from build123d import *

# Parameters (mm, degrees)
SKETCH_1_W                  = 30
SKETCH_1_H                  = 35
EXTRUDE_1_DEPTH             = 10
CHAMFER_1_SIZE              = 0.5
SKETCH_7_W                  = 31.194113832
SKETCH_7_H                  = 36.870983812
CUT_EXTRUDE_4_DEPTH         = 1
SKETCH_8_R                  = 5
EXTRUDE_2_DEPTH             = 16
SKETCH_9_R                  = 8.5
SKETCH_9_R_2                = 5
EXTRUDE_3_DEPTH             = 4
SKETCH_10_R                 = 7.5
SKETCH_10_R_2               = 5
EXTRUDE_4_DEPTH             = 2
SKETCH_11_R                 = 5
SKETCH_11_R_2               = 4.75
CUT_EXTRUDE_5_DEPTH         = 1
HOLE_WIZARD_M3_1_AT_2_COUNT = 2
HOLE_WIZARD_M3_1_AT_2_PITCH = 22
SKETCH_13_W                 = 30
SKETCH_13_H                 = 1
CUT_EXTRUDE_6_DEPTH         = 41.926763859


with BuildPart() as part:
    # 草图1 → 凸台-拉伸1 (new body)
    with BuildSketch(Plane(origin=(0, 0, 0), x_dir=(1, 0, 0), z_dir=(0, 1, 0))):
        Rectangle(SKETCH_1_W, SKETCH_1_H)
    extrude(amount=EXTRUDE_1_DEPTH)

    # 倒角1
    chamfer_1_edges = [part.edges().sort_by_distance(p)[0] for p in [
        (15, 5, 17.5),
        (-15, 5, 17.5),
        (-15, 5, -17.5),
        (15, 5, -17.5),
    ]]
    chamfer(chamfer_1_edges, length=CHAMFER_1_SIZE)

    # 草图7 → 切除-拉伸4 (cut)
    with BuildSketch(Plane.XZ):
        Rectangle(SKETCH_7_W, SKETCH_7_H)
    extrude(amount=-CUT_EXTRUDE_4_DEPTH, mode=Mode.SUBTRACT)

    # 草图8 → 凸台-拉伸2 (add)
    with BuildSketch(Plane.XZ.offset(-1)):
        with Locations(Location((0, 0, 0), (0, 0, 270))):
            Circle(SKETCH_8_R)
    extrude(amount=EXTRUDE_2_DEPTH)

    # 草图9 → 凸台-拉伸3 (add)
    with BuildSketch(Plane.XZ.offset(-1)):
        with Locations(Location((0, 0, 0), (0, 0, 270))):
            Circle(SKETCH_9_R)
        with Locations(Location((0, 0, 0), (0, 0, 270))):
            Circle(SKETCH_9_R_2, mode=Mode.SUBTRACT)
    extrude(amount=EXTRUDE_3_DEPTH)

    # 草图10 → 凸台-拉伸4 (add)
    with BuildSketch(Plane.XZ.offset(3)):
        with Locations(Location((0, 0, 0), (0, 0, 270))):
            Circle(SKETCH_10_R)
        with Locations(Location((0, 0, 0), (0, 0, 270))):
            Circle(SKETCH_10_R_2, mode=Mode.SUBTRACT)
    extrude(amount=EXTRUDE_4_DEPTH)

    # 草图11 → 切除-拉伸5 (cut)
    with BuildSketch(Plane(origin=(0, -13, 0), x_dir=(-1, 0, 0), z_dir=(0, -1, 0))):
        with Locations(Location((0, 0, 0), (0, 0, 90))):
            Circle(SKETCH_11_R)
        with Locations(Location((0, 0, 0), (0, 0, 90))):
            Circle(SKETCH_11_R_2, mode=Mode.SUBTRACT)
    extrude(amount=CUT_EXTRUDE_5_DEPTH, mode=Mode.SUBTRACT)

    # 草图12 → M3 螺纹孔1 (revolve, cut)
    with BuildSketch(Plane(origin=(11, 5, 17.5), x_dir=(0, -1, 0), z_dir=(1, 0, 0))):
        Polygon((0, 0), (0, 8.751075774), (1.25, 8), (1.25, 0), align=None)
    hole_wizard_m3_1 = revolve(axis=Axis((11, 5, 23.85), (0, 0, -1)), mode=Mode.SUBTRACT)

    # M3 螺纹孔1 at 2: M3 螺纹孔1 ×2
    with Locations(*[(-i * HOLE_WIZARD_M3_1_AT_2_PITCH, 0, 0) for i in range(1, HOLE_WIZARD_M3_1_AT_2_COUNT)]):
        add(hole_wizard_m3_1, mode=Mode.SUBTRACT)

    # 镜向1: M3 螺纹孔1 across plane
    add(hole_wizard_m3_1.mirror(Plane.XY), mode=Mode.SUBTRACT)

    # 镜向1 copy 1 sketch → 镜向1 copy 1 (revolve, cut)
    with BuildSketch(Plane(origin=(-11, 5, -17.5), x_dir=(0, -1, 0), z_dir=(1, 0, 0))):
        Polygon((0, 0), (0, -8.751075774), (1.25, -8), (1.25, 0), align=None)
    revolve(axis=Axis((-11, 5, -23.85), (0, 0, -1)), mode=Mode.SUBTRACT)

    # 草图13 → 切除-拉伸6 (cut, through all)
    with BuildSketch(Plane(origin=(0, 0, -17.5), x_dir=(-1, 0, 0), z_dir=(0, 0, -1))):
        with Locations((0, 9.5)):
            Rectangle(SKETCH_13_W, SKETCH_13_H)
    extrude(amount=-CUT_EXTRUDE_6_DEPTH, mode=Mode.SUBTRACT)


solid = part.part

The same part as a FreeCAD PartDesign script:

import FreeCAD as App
import Part
import Sketcher
from FreeCAD import Vector
Q = App.Units.Quantity


def edges_at(feature, points):
    """Names of the edges that pass closest to the given points."""
    edges = feature.Shape.Edges
    near = lambda p: min(range(len(edges)), key=lambda i: edges[i].distToShape(Part.Vertex(*p))[0])
    return sorted({f"Edge{near(p) + 1}" for p in points})

doc = App.newDocument("Part")
body = doc.addObject("PartDesign::Body", "Body")

# Sketch on XZ plane
sketch1 = body.newObject("Sketcher::SketchObject", "Sketch")
sketch1.AttachmentSupport = (doc.getObject("XZ_Plane"), [""])
sketch1.MapMode = "FlatFace"
sketch1.addGeometry(Part.LineSegment(Vector(-15, -18, 0), Vector(-15, 18, 0)), False)
sketch1.addGeometry(Part.LineSegment(Vector(-15, 18, 0), Vector(15, 18, 0)), False)
sketch1.addGeometry(Part.LineSegment(Vector(15, 18, 0), Vector(15, -18, 0)), False)
sketch1.addGeometry(Part.LineSegment(Vector(15, -18, 0), Vector(-15, -18, 0)), False)
sketch1.addConstraint(Sketcher.Constraint("Coincident", 0, 2, 1, 1))
sketch1.addConstraint(Sketcher.Constraint("Coincident", 1, 2, 2, 1))
sketch1.addConstraint(Sketcher.Constraint("Coincident", 2, 2, 3, 1))
sketch1.addConstraint(Sketcher.Constraint("Coincident", 3, 2, 0, 1))
sketch1.addConstraint(Sketcher.Constraint("Vertical", 0))
sketch1.addConstraint(Sketcher.Constraint("Horizontal", 1))
sketch1.addConstraint(Sketcher.Constraint("Vertical", 2))
sketch1.addConstraint(Sketcher.Constraint("Horizontal", 3))
sketch1.addConstraint(Sketcher.Constraint("Symmetric", 0, 2, 2, 2, -1, 1))
sketch1.addConstraint(Sketcher.Constraint("DistanceX", 1, 1, 1, 2, 30.0))
sketch1.addConstraint(Sketcher.Constraint("DistanceY", 0, 1, 0, 2, 35.0))
pad1 = body.newObject("PartDesign::Pad", "Pad")
pad1.Profile = sketch1
pad1.Length = 10
pad1.Reversed = True
doc.recompute()

chamfer = body.newObject("PartDesign::Chamfer", "Chamfer")
chamfer.Base = (pad1, edges_at(pad1, [
    (15, 5, 17.5),
    (-15, 5, 17.5),
    (-15, 5, -17.5),
    (15, 5, -17.5),
]))
chamfer.Size = 0.5

# Sketch on XZ plane
sketch2 = body.newObject("Sketcher::SketchObject", "Sketch001")
sketch2.AttachmentSupport = (doc.getObject("XZ_Plane"), [""])
sketch2.MapMode = "FlatFace"
sketch2.addGeometry(Part.LineSegment(Vector(-16, 18, 0), Vector(-16, -18, 0)), False)
sketch2.addGeometry(Part.LineSegment(Vector(-16, -18, 0), Vector(16, -18, 0)), False)
sketch2.addGeometry(Part.LineSegment(Vector(16, -18, 0), Vector(16, 18, 0)), False)
sketch2.addGeometry(Part.LineSegment(Vector(16, 18, 0), Vector(-16, 18, 0)), False)
sketch2.addConstraint(Sketcher.Constraint("Coincident", 0, 2, 1, 1))
sketch2.addConstraint(Sketcher.Constraint("Coincident", 1, 2, 2, 1))
sketch2.addConstraint(Sketcher.Constraint("Coincident", 2, 2, 3, 1))
sketch2.addConstraint(Sketcher.Constraint("Coincident", 3, 2, 0, 1))
sketch2.addConstraint(Sketcher.Constraint("Vertical", 0))
sketch2.addConstraint(Sketcher.Constraint("Horizontal", 1))
sketch2.addConstraint(Sketcher.Constraint("Vertical", 2))
sketch2.addConstraint(Sketcher.Constraint("Horizontal", 3))
sketch2.addConstraint(Sketcher.Constraint("Symmetric", 0, 2, 2, 2, -1, 1))
sketch2.addConstraint(Sketcher.Constraint("DistanceX", 1, 1, 1, 2, 31.194114))
sketch2.addConstraint(Sketcher.Constraint("DistanceY", 0, 2, 0, 1, 36.870984))
pocket1 = body.newObject("PartDesign::Pocket", "Pocket")
pocket1.Profile = sketch2
pocket1.Length = 1

# Sketch on XZ plane
sketch3 = body.newObject("Sketcher::SketchObject", "Sketch002")
sketch3.AttachmentSupport = (doc.getObject("XZ_Plane"), [""])
sketch3.MapMode = "FlatFace"
sketch3.AttachmentOffset = App.Placement(Vector(0, 0, -1), App.Rotation())
sketch3.addGeometry(Part.Circle(Vector(0, 0, 0), Vector(0, 0, 1), 5), False)
sketch3.addConstraint(Sketcher.Constraint("Coincident", 0, 3, -1, 1))
sketch3.addConstraint(Sketcher.Constraint("Diameter", 0, 10.0))
pad2 = body.newObject("PartDesign::Pad", "Pad001")
pad2.Profile = sketch3
pad2.Length = 16

# Sketch on XZ plane
sketch4 = body.newObject("Sketcher::SketchObject", "Sketch003")
sketch4.AttachmentSupport = (doc.getObject("XZ_Plane"), [""])
sketch4.MapMode = "FlatFace"
sketch4.AttachmentOffset = App.Placement(Vector(0, 0, -1), App.Rotation())
sketch4.addGeometry(Part.Circle(Vector(0, 0, 0), Vector(0, 0, 1), 8), False)
sketch4.addGeometry(Part.Circle(Vector(0, 0, 0), Vector(0, 0, 1), 5), False)
sketch4.addConstraint(Sketcher.Constraint("Coincident", 0, 3, -1, 1))
sketch4.addConstraint(Sketcher.Constraint("Coincident", 1, 3, -1, 1))
sketch4.addConstraint(Sketcher.Constraint("Diameter", 0, 17.0))
sketch4.addConstraint(Sketcher.Constraint("Diameter", 1, 10.0))
pad3 = body.newObject("PartDesign::Pad", "Pad002")
pad3.Profile = sketch4
pad3.Length = 4

# Sketch on XZ plane
sketch5 = body.newObject("Sketcher::SketchObject", "Sketch004")
sketch5.AttachmentSupport = (doc.getObject("XZ_Plane"), [""])
sketch5.MapMode = "FlatFace"
sketch5.AttachmentOffset = App.Placement(Vector(0, 0, 3), App.Rotation())
sketch5.addGeometry(Part.Circle(Vector(0, 0, 0), Vector(0, 0, 1), 8), False)
sketch5.addGeometry(Part.Circle(Vector(0, 0, 0), Vector(0, 0, 1), 5), False)
sketch5.addConstraint(Sketcher.Constraint("Coincident", 0, 3, -1, 1))
sketch5.addConstraint(Sketcher.Constraint("Coincident", 1, 3, -1, 1))
sketch5.addConstraint(Sketcher.Constraint("Diameter", 0, 15.0))
sketch5.addConstraint(Sketcher.Constraint("Diameter", 1, 10.0))
pad4 = body.newObject("PartDesign::Pad", "Pad003")
pad4.Profile = sketch5
pad4.Length = 2

# Sketch on XZ plane
sketch6 = body.newObject("Sketcher::SketchObject", "Sketch005")
sketch6.AttachmentSupport = (doc.getObject("XZ_Plane"), [""])
sketch6.MapMode = "FlatFace"
sketch6.AttachmentOffset = App.Placement(Vector(0, 0, 13), App.Rotation())
sketch6.addGeometry(Part.Circle(Vector(0, 0, 0), Vector(0, 0, 1), 5), False)
sketch6.addGeometry(Part.Circle(Vector(0, 0, 0), Vector(0, 0, 1), 4.8), False)
sketch6.addConstraint(Sketcher.Constraint("Coincident", 0, 3, -1, 1))
sketch6.addConstraint(Sketcher.Constraint("Coincident", 1, 3, -1, 1))
sketch6.addConstraint(Sketcher.Constraint("Diameter", 0, 10.0))
sketch6.addConstraint(Sketcher.Constraint("Diameter", 1, 9.5))
pocket2 = body.newObject("PartDesign::Pocket", "Pocket001")
pocket2.Profile = sketch6
pocket2.Length = 1
pocket2.Reversed = True

# Sketch on YZ plane
sketch7 = body.newObject("Sketcher::SketchObject", "Sketch006")
sketch7.AttachmentSupport = (doc.getObject("YZ_Plane"), [""])
sketch7.MapMode = "FlatFace"
sketch7.AttachmentOffset = App.Placement(Vector(0, 0, 11), App.Rotation())
sketch7.addGeometry(Part.LineSegment(Vector(5, 8.7, 0), Vector(5, 17.5, 0)), False)
sketch7.addGeometry(Part.LineSegment(Vector(5, 17.5, 0), Vector(3.8, 17.5, 0)), False)
sketch7.addGeometry(Part.LineSegment(Vector(3.8, 17.5, 0), Vector(3.8, 9.5, 0)), False)
sketch7.addGeometry(Part.LineSegment(Vector(3.8, 9.5, 0), Vector(5, 8.7, 0)), False)
sketch7.addGeometry(Part.LineSegment(Vector(5, 17.5, 0), Vector(5, 8.7, 0)), True)  # axis
sketch7.addConstraint(Sketcher.Constraint("Coincident", 0, 2, 1, 1))
sketch7.addConstraint(Sketcher.Constraint("Coincident", 1, 2, 2, 1))
sketch7.addConstraint(Sketcher.Constraint("Coincident", 2, 2, 3, 1))
sketch7.addConstraint(Sketcher.Constraint("Coincident", 3, 2, 0, 1))
sketch7.addConstraint(Sketcher.Constraint("Vertical", 0))
sketch7.addConstraint(Sketcher.Constraint("Horizontal", 1))
sketch7.addConstraint(Sketcher.Constraint("Vertical", 2))
sketch7.addConstraint(Sketcher.Constraint("Vertical", 4))
sketch7.addConstraint(Sketcher.Constraint("Coincident", 4, 1, 0, 2))
sketch7.addConstraint(Sketcher.Constraint("Equal", 0, 4))
sketch7.addConstraint(Sketcher.Constraint("DistanceY", 2, 2, 2, 1, 8.0))
sketch7.addConstraint(Sketcher.Constraint("Angle", 3, Q("-31 deg")))
sketch7.addConstraint(Sketcher.Constraint("DistanceX", -1, 1, 0, 2, 5.0))
sketch7.addConstraint(Sketcher.Constraint("DistanceX", 1, 2, 1, 1, 1.25))
sketch7.addConstraint(Sketcher.Constraint("DistanceY", -1, 1, 0, 2, 17.5))
groove = body.newObject("PartDesign::Groove", "Groove")
groove.Profile = sketch7
groove.ReferenceAxis = (sketch7, ["Axis0"])
groove.Angle = 360
doc.recompute()

linearpattern = body.newObject("PartDesign::LinearPattern", "LinearPattern")
linearpattern.Originals = [groove]
linearpattern.Direction = (doc.getObject("X_Axis"), [""])
linearpattern.Mode = "offset"
linearpattern.Offset = 22
linearpattern.Occurrences = 2
linearpattern.Reversed = True
body.Tip = linearpattern
doc.recompute()

mirrored = body.newObject("PartDesign::Mirrored", "Mirrored")
mirrored.Originals = [groove]
mirrored.MirrorPlane = (doc.getObject("XY_Plane"), [""])
body.Tip = mirrored

# Sketch on YZ plane
sketch8 = body.newObject("Sketcher::SketchObject", "Sketch007")
sketch8.AttachmentSupport = (doc.getObject("YZ_Plane"), [""])
sketch8.MapMode = "FlatFace"
sketch8.AttachmentOffset = App.Placement(Vector(0, 0, -11), App.Rotation())
sketch8.addGeometry(Part.LineSegment(Vector(5, -17.5, 0), Vector(5, -8.7, 0)), False)
sketch8.addGeometry(Part.LineSegment(Vector(5, -8.7, 0), Vector(3.8, -9.5, 0)), False)
sketch8.addGeometry(Part.LineSegment(Vector(3.8, -9.5, 0), Vector(3.8, -17.5, 0)), False)
sketch8.addGeometry(Part.LineSegment(Vector(3.8, -17.5, 0), Vector(5, -17.5, 0)), False)
sketch8.addGeometry(Part.LineSegment(Vector(5, -8.7, 0), Vector(5, -17.5, 0)), True)  # axis
sketch8.addConstraint(Sketcher.Constraint("Coincident", 0, 2, 1, 1))
sketch8.addConstraint(Sketcher.Constraint("Coincident", 1, 2, 2, 1))
sketch8.addConstraint(Sketcher.Constraint("Coincident", 2, 2, 3, 1))
sketch8.addConstraint(Sketcher.Constraint("Coincident", 3, 2, 0, 1))
sketch8.addConstraint(Sketcher.Constraint("Vertical", 0))
sketch8.addConstraint(Sketcher.Constraint("Vertical", 2))
sketch8.addConstraint(Sketcher.Constraint("Horizontal", 3))
sketch8.addConstraint(Sketcher.Constraint("Vertical", 4))
sketch8.addConstraint(Sketcher.Constraint("Coincident", 4, 1, 0, 2))
sketch8.addConstraint(Sketcher.Constraint("Horizontal", 2, 2, 4, 2))
sketch8.addConstraint(Sketcher.Constraint("DistanceY", 2, 2, 2, 1, 8.0))
sketch8.addConstraint(Sketcher.Constraint("Angle", 1, Q("-149 deg")))
sketch8.addConstraint(Sketcher.Constraint("DistanceX", -1, 1, 0, 2, 5.0))
sketch8.addConstraint(Sketcher.Constraint("DistanceX", 3, 1, 3, 2, 1.25))
sketch8.addConstraint(Sketcher.Constraint("DistanceY", 1, 2, -1, 1, 9.5))
groove2 = body.newObject("PartDesign::Groove", "Groove001")
groove2.Profile = sketch8
groove2.ReferenceAxis = (sketch8, ["Axis0"])
groove2.Angle = 360

# Sketch on XY plane
sketch9 = body.newObject("Sketcher::SketchObject", "Sketch008")
sketch9.AttachmentSupport = (doc.getObject("XY_Plane"), [""])
sketch9.MapMode = "FlatFace"
sketch9.AttachmentOffset = App.Placement(Vector(0, 0, -17.5), App.Rotation())
sketch9.addGeometry(Part.LineSegment(Vector(15, 10, 0), Vector(15, 9, 0)), False)
sketch9.addGeometry(Part.LineSegment(Vector(15, 9, 0), Vector(-15, 9, 0)), False)
sketch9.addGeometry(Part.LineSegment(Vector(-15, 9, 0), Vector(-15, 10, 0)), False)
sketch9.addGeometry(Part.LineSegment(Vector(-15, 10, 0), Vector(15, 10, 0)), False)
sketch9.addConstraint(Sketcher.Constraint("Coincident", 0, 2, 1, 1))
sketch9.addConstraint(Sketcher.Constraint("Coincident", 1, 2, 2, 1))
sketch9.addConstraint(Sketcher.Constraint("Coincident", 2, 2, 3, 1))
sketch9.addConstraint(Sketcher.Constraint("Coincident", 3, 2, 0, 1))
sketch9.addConstraint(Sketcher.Constraint("Vertical", 0))
sketch9.addConstraint(Sketcher.Constraint("Horizontal", 1))
sketch9.addConstraint(Sketcher.Constraint("Vertical", 2))
sketch9.addConstraint(Sketcher.Constraint("Horizontal", 3))
sketch9.addConstraint(Sketcher.Constraint("DistanceX", 1, 2, 1, 1, 30.0))
sketch9.addConstraint(Sketcher.Constraint("DistanceY", 0, 2, 0, 1, 1.0))
sketch9.addConstraint(Sketcher.Constraint("DistanceX", -1, 1, 0, 2, 15.0))
sketch9.addConstraint(Sketcher.Constraint("DistanceY", -1, 1, 0, 2, 9.0))
pocket3 = body.newObject("PartDesign::Pocket", "Pocket002")
pocket3.Profile = sketch9
pocket3.Type = "ThroughAll"
pocket3.Reversed = True

doc.recompute()
